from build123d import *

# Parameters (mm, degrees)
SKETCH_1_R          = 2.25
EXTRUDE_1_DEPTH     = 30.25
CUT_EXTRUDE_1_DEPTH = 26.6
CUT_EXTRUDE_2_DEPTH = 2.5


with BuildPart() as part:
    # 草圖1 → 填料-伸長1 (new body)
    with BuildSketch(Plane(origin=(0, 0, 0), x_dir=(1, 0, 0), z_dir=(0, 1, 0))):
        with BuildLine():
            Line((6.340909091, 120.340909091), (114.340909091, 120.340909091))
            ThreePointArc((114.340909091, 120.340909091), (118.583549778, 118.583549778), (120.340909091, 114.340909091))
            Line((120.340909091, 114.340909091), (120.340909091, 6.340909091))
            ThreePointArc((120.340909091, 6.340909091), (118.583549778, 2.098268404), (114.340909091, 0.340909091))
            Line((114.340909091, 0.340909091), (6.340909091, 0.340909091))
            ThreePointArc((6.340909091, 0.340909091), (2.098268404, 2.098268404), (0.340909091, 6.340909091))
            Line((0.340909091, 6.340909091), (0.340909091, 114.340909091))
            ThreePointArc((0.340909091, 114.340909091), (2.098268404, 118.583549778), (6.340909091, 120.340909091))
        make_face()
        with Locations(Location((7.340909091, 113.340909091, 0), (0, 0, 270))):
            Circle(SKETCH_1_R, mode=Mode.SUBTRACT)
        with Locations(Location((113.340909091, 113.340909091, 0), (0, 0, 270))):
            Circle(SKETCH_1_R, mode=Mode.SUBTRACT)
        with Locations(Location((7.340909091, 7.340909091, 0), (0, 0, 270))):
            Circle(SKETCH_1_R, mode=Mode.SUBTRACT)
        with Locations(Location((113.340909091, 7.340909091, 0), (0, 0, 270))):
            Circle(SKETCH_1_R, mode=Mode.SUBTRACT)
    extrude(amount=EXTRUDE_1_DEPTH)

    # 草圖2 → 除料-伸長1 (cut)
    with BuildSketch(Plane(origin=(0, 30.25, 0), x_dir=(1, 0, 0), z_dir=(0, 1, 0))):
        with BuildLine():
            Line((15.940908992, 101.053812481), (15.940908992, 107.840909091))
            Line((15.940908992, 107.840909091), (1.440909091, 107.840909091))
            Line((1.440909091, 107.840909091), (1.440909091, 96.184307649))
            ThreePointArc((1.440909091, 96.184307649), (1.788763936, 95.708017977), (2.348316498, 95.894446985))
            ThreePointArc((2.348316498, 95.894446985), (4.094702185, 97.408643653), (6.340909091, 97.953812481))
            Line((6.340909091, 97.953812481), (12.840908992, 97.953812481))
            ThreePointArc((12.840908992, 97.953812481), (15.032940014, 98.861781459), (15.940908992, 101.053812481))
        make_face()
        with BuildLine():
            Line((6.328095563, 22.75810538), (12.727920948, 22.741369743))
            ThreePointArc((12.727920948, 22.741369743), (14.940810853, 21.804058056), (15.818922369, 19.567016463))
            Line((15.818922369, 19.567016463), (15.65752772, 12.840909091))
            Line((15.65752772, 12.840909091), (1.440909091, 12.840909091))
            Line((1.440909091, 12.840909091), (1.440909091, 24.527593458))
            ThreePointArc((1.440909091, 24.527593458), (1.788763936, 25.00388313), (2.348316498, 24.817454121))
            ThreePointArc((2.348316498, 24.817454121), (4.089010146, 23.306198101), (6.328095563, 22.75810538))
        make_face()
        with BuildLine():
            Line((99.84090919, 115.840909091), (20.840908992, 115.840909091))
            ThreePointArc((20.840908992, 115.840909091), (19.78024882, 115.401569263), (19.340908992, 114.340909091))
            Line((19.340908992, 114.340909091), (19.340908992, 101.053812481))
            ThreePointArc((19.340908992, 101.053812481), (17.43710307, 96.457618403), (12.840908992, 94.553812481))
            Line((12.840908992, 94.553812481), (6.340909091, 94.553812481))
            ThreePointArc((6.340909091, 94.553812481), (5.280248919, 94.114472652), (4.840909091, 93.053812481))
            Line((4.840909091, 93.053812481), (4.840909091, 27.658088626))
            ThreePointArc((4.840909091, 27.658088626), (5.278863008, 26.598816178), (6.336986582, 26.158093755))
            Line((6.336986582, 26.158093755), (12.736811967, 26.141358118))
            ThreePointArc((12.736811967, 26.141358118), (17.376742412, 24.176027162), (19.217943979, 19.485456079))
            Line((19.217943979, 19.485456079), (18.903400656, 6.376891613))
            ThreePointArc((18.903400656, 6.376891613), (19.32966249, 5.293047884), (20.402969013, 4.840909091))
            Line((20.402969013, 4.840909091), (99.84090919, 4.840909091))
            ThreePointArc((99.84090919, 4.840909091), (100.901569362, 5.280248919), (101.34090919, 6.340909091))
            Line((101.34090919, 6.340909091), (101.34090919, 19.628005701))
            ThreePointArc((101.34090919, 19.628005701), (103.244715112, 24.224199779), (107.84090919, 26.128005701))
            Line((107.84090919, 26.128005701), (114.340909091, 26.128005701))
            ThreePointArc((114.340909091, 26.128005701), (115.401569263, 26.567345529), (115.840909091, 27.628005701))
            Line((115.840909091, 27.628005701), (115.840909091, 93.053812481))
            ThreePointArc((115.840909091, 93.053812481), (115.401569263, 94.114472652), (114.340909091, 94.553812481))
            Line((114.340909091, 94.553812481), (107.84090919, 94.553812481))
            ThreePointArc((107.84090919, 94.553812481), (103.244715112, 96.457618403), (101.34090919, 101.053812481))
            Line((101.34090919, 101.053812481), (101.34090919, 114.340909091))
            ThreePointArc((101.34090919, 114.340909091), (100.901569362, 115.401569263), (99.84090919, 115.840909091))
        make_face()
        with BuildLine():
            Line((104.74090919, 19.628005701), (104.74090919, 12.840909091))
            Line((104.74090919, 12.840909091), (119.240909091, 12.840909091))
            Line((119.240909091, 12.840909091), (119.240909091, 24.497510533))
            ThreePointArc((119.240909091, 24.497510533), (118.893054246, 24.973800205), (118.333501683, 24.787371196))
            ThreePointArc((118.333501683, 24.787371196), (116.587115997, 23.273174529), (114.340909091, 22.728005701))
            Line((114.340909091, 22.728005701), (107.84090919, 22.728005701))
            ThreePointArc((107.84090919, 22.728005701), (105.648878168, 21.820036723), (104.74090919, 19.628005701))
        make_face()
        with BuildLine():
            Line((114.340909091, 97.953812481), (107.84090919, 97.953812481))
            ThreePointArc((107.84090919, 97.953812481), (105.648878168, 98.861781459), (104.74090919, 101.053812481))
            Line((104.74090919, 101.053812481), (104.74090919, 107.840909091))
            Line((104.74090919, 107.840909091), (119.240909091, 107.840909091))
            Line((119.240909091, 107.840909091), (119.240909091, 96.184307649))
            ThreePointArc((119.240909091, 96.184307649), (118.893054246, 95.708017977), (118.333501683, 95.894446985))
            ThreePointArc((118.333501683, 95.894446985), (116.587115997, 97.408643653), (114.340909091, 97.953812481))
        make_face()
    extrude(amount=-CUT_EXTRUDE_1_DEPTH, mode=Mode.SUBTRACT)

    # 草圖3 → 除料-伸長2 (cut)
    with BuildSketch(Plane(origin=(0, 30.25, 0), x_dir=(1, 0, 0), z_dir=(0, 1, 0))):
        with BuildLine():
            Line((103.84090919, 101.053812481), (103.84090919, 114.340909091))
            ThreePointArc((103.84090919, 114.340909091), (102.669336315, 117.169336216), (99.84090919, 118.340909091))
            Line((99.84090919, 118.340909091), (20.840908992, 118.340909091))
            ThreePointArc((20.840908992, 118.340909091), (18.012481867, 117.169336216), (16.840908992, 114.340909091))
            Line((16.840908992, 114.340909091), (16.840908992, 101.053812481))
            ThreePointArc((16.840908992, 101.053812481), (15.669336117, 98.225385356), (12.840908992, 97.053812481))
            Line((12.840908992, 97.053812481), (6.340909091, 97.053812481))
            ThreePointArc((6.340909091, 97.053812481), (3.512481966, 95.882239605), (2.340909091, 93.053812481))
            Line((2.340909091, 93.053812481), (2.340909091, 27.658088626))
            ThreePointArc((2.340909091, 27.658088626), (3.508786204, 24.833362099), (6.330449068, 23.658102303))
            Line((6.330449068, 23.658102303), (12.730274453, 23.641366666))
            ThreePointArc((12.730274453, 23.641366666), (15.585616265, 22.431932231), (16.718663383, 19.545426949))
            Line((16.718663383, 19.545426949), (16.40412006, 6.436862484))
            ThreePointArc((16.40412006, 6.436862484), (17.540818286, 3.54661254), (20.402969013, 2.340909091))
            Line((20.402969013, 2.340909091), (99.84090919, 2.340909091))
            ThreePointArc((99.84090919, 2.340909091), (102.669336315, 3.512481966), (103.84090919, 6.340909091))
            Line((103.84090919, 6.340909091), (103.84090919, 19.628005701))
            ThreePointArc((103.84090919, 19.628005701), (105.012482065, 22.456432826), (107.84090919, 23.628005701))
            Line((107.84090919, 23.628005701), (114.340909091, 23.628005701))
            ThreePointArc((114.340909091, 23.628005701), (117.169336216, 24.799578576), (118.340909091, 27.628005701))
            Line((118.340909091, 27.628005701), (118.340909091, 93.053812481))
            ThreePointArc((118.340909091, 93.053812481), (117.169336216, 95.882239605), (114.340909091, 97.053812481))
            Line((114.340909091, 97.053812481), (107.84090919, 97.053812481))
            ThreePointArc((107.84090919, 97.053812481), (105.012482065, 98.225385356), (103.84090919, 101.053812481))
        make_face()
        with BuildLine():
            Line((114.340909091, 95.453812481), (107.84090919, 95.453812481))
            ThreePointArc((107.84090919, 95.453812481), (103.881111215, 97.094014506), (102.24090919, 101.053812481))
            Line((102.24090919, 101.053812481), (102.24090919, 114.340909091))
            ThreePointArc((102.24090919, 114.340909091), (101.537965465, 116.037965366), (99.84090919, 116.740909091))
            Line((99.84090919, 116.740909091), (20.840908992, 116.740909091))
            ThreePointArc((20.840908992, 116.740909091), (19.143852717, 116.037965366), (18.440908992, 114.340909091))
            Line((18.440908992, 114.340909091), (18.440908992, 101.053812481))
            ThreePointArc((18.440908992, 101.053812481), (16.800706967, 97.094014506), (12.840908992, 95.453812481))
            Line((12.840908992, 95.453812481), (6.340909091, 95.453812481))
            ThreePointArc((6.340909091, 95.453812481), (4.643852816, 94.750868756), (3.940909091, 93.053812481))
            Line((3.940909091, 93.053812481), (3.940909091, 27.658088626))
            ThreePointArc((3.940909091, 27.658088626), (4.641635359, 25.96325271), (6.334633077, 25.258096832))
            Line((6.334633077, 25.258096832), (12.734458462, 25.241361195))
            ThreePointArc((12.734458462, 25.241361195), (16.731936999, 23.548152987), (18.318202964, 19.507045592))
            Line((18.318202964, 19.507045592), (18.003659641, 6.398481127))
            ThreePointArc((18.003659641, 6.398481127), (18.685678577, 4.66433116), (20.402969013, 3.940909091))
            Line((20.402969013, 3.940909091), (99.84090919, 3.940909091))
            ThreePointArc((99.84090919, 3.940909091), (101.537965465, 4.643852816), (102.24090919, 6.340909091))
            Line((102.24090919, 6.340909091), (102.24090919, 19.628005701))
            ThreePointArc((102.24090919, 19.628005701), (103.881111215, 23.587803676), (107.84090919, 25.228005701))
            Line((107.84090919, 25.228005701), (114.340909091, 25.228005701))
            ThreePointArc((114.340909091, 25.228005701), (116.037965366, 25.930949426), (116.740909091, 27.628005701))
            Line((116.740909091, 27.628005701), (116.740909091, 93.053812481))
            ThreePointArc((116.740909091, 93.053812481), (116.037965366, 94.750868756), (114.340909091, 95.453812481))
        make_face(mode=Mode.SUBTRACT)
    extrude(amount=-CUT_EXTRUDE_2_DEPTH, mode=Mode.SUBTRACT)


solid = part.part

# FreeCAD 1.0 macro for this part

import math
import FreeCAD as App
import Part
import Sketcher

V = App.Vector

doc = App.newDocument("Part")
body = doc.addObject("PartDesign::Body", "Body")

# Sketch on XZ plane
sketch1 = body.newObject("Sketcher::SketchObject", "Sketch")
sketch1.AttachmentSupport = (doc.getObject("XZ_Plane"), [""])
sketch1.MapMode = "FlatFace"
sketch1.addGeometry(Part.LineSegment(V(114.3, -120.3, 0), V(6.3, -120.3, 0)), False)
sketch1.addGeometry(Part.ArcOfCircle(Part.Circle(V(6.3, -114.3, 0), V(0, 0, 1), 6), math.radians(180), math.radians(270)), False)
sketch1.addGeometry(Part.LineSegment(V(0.3, -114.3, 0), V(0.3, -6.3, 0)), False)
sketch1.addGeometry(Part.ArcOfCircle(Part.Circle(V(6.3, -6.3, 0), V(0, 0, 1), 6), math.radians(90), math.radians(180)), False)
sketch1.addGeometry(Part.LineSegment(V(6.3, -0.3, 0), V(114.3, -0.3, 0)), False)
sketch1.addGeometry(Part.ArcOfCircle(Part.Circle(V(114.3, -6.3, 0), V(0, 0, 1), 6), math.radians(0), math.radians(90)), False)
sketch1.addGeometry(Part.LineSegment(V(120.3, -6.3, 0), V(120.3, -114.3, 0)), False)
sketch1.addGeometry(Part.ArcOfCircle(Part.Circle(V(114.3, -114.3, 0), V(0, 0, 1), 6), math.radians(-90), math.radians(0)), False)
sketch1.addGeometry(Part.Circle(V(113.3, -7.3, 0), V(0, 0, 1), 2.2), False)
sketch1.addGeometry(Part.Circle(V(7.3, -7.3, 0), V(0, 0, 1), 2.2), False)
sketch1.addGeometry(Part.Circle(V(113.3, -113.3, 0), V(0, 0, 1), 2.2), False)
sketch1.addGeometry(Part.Circle(V(7.3, -113.3, 0), V(0, 0, 1), 2.2), False)
sketch1.addConstraint(Sketcher.Constraint("Tangent", 0, 2, 1, 2))
sketch1.addConstraint(Sketcher.Constraint("Tangent", 1, 1, 2, 1))
sketch1.addConstraint(Sketcher.Constraint("Tangent", 2, 2, 3, 2))
sketch1.addConstraint(Sketcher.Constraint("Tangent", 3, 1, 4, 1))
sketch1.addConstraint(Sketcher.Constraint("Tangent", 4, 2, 5, 2))
sketch1.addConstraint(Sketcher.Constraint("Tangent", 5, 1, 6, 1))
sketch1.addConstraint(Sketcher.Constraint("Tangent", 6, 2, 7, 2))
sketch1.addConstraint(Sketcher.Constraint("Tangent", 7, 1, 0, 1))
sketch1.addConstraint(Sketcher.Constraint("Horizontal", 0))
sketch1.addConstraint(Sketcher.Constraint("Vertical", 2))
sketch1.addConstraint(Sketcher.Constraint("Horizontal", 4))
sketch1.addConstraint(Sketcher.Constraint("Vertical", 6))
sketch1.addConstraint(Sketcher.Constraint("Equal", 1, 3))
sketch1.addConstraint(Sketcher.Constraint("Equal", 3, 5))
sketch1.addConstraint(Sketcher.Constraint("Equal", 5, 7))
sketch1.addConstraint(Sketcher.Constraint("Equal", 8, 9))
sketch1.addConstraint(Sketcher.Constraint("Equal", 9, 10))
sketch1.addConstraint(Sketcher.Constraint("Equal", 10, 11))
sketch1.addConstraint(Sketcher.Constraint("Horizontal", 8, 3, 9, 3))
sketch1.addConstraint(Sketcher.Constraint("Horizontal", 10, 3, 11, 3))
sketch1.addConstraint(Sketcher.Constraint("Vertical", 8, 3, 10, 3))
sketch1.addConstraint(Sketcher.Constraint("Vertical", 9, 3, 11, 3))
sketch1.addConstraint(Sketcher.Constraint("Equal", 4, 2))
sketch1.addConstraint(Sketcher.Constraint("Radius", 1, 6.0))
sketch1.addConstraint(Sketcher.Constraint("Diameter", 8, 4.5))
sketch1.addConstraint(Sketcher.Constraint("DistanceX", 0, 2, 0, 1, 108.0))
sketch1.addConstraint(Sketcher.Constraint("DistanceX", 8, 3, 5, 3, 1.0))
sketch1.addConstraint(Sketcher.Constraint("DistanceY", 8, 3, 5, 3, 1.0))
sketch1.addConstraint(Sketcher.Constraint("DistanceX", 3, 3, 9, 3, 1.0))
sketch1.addConstraint(Sketcher.Constraint("DistanceY", 7, 3, 10, 3, 1.0))
sketch1.addConstraint(Sketcher.Constraint("DistanceX", -1, 1, 1, 3, 6.340909))
sketch1.addConstraint(Sketcher.Constraint("DistanceY", 1, 3, -1, 1, 114.340909))
pad1 = body.newObject("PartDesign::Pad", "Pad")
pad1.Profile = sketch1
pad1.Length = 30.25
pad1.Reversed = True

# Sketch on XZ plane
sketch2 = body.newObject("Sketcher::SketchObject", "Sketch001")
sketch2.AttachmentSupport = (doc.getObject("XZ_Plane"), [""])
sketch2.MapMode = "FlatFace"
sketch2.AttachmentOffset = App.Placement(V(0, 0, -30.25), App.Rotation())
sketch2.addGeometry(Part.LineSegment(V(15.9, -101.1, 0), V(15.9, -107.8, 0)), False)
sketch2.addGeometry(Part.LineSegment(V(15.9, -107.8, 0), V(1.4, -107.8, 0)), False)
sketch2.addGeometry(Part.LineSegment(V(1.4, -107.8, 0), V(1.4, -96.2, 0)), False)
sketch2.addGeometry(Part.ArcOfCircle(Part.Circle(V(1.9, -96.2, 0), V(0, 0, 1), 0.5), math.radians(35), math.radians(180)), False)
sketch2.addGeometry(Part.ArcOfCircle(Part.Circle(V(6.3, -93.1, 0), V(0, 0, 1), 4.9), math.radians(-145), math.radians(-90)), False)
sketch2.addGeometry(Part.LineSegment(V(6.3, -98, 0), V(12.8, -98, 0)), False)
sketch2.addGeometry(Part.ArcOfCircle(Part.Circle(V(12.8, -101.1, 0), V(0, 0, 1), 3.1), math.radians(0), math.radians(90)), False)
sketch2.addGeometry(Part.LineSegment(V(12.7, -22.7, 0), V(6.3, -22.8, 0)), False)
sketch2.addGeometry(Part.ArcOfCircle(Part.Circle(V(6.3, -27.7, 0), V(0, 0, 1), 4.9), math.radians(90), math.radians(145)), False)
sketch2.addGeometry(Part.ArcOfCircle(Part.Circle(V(1.9, -24.5, 0), V(0, 0, 1), 0.5), math.radians(180), math.radians(325)), False)
sketch2.addGeometry(Part.LineSegment(V(1.4, -24.5, 0), V(1.4, -12.8, 0)), False)
sketch2.addGeometry(Part.LineSegment(V(1.4, -12.8, 0), V(15.7, -12.8, 0)), False)
sketch2.addGeometry(Part.LineSegment(V(15.7, -12.8, 0), V(15.8, -19.6, 0)), False)
sketch2.addGeometry(Part.ArcOfCircle(Part.Circle(V(12.7, -19.6, 0), V(0, 0, 1), 3.1), math.radians(-90), math.radians(1)), False)
sketch2.addGeometry(Part.LineSegment(V(99.8, -115.8, 0), V(20.8, -115.8, 0)), False)
sketch2.addGeometry(Part.ArcOfCircle(Part.Circle(V(20.8, -114.3, 0), V(0, 0, 1), 1.5), math.radians(180), math.radians(270)), False)
sketch2.addGeometry(Part.LineSegment(V(19.3, -114.3, 0), V(19.3, -101.1, 0)), False)
sketch2.addGeometry(Part.ArcOfCircle(Part.Circle(V(12.8, -101.1, 0), V(0, 0, 1), 6.5), math.radians(0), math.radians(90)), False)
sketch2.addGeometry(Part.LineSegment(V(12.8, -94.6, 0), V(6.3, -94.6, 0)), False)
sketch2.addGeometry(Part.ArcOfCircle(Part.Circle(V(6.3, -93.1, 0), V(0, 0, 1), 1.5), math.radians(-180), math.radians(-90)), False)
sketch2.addGeometry(Part.LineSegment(V(4.8, -93.1, 0), V(4.8, -27.7, 0)), False)
sketch2.addGeometry(Part.ArcOfCircle(Part.Circle(V(6.3, -27.7, 0), V(0, 0, 1), 1.5), math.radians(90), math.radians(180)), False)
sketch2.addGeometry(Part.LineSegment(V(6.3, -26.2, 0), V(12.7, -26.1, 0)), False)
sketch2.addGeometry(Part.ArcOfCircle(Part.Circle(V(12.7, -19.6, 0), V(0, 0, 1), 6.5), math.radians(-90), math.radians(1)), False)
sketch2.addGeometry(Part.LineSegment(V(19.2, -19.5, 0), V(18.9, -6.4, 0)), False)
sketch2.addGeometry(Part.ArcOfCircle(Part.Circle(V(20.4, -6.3, 0), V(0, 0, 1), 1.5), math.radians(90), math.radians(181)), False)
sketch2.addGeometry(Part.LineSegment(V(20.4, -4.8, 0), V(99.8, -4.8, 0)), False)
sketch2.addGeometry(Part.ArcOfCircle(Part.Circle(V(99.8, -6.3, 0), V(0, 0, 1), 1.5), math.radians(0), math.radians(90)), False)
sketch2.addGeometry(Part.LineSegment(V(101.3, -6.3, 0), V(101.3, -19.6, 0)), False)
sketch2.addGeometry(Part.ArcOfCircle(Part.Circle(V(107.8, -19.6, 0), V(0, 0, 1), 6.5), math.radians(180), math.radians(270)), False)
sketch2.addGeometry(Part.LineSegment(V(107.8, -26.1, 0), V(114.3, -26.1, 0)), False)
sketch2.addGeometry(Part.ArcOfCircle(Part.Circle(V(114.3, -27.6, 0), V(0, 0, 1), 1.5), math.radians(0), math.radians(90)), False)
sketch2.addGeometry(Part.LineSegment(V(115.8, -27.6, 0), V(115.8, -93.1, 0)), False)
sketch2.addGeometry(Part.ArcOfCircle(Part.Circle(V(114.3, -93.1, 0), V(0, 0, 1), 1.5), math.radians(-90), math.radians(0)), False)
sketch2.addGeometry(Part.LineSegment(V(114.3, -94.6, 0), V(107.8, -94.6, 0)), False)
sketch2.addGeometry(Part.ArcOfCircle(Part.Circle(V(107.8, -101.1, 0), V(0, 0, 1), 6.5), math.radians(90), math.radians(180)), False)
sketch2.addGeometry(Part.LineSegment(V(101.3, -101.1, 0), V(101.3, -114.3, 0)), False)
sketch2.addGeometry(Part.ArcOfCircle(Part.Circle(V(99.8, -114.3, 0), V(0, 0, 1), 1.5), math.radians(-90), math.radians(0)), False)
sketch2.addGeometry(Part.LineSegment(V(104.7, -19.6, 0), V(104.7, -12.8, 0)), False)
sketch2.addGeometry(Part.LineSegment(V(104.7, -12.8, 0), V(119.2, -12.8, 0)), False)
sketch2.addGeometry(Part.LineSegment(V(119.2, -12.8, 0), V(119.2, -24.5, 0)), False)
sketch2.addGeometry(Part.ArcOfCircle(Part.Circle(V(118.7, -24.5, 0), V(0, 0, 1), 0.5), math.radians(-145), math.radians(0)), False)
sketch2.addGeometry(Part.ArcOfCircle(Part.Circle(V(114.3, -27.6, 0), V(0, 0, 1), 4.9), math.radians(35), math.radians(90)), False)
sketch2.addGeometry(Part.LineSegment(V(114.3, -22.7, 0), V(107.8, -22.7, 0)), False)
sketch2.addGeometry(Part.ArcOfCircle(Part.Circle(V(107.8, -19.6, 0), V(0, 0, 1), 3.1), math.radians(180), math.radians(270)), False)
sketch2.addGeometry(Part.LineSegment(V(107.8, -98, 0), V(114.3, -98, 0)), False)
sketch2.addGeometry(Part.ArcOfCircle(Part.Circle(V(114.3, -93.1, 0), V(0, 0, 1), 4.9), math.radians(-90), math.radians(-35)), False)
sketch2.addGeometry(Part.ArcOfCircle(Part.Circle(V(118.7, -96.2, 0), V(0, 0, 1), 0.5), math.radians(0), math.radians(145)), False)
sketch2.addGeometry(Part.LineSegment(V(119.2, -96.2, 0), V(119.2, -107.8, 0)), False)
sketch2.addGeometry(Part.LineSegment(V(119.2, -107.8, 0), V(104.7, -107.8, 0)), False)
sketch2.addGeometry(Part.LineSegment(V(104.7, -107.8, 0), V(104.7, -101.1, 0)), False)
sketch2.addGeometry(Part.ArcOfCircle(Part.Circle(V(107.8, -101.1, 0), V(0, 0, 1), 3.1), math.radians(90), math.radians(180)), False)
sketch2.addConstraint(Sketcher.Constraint("Coincident", 0, 2, 1, 1))
sketch2.addConstraint(Sketcher.Constraint("Coincident", 1, 2, 2, 1))
sketch2.addConstraint(Sketcher.Constraint("Tangent", 2, 2, 3, 2))
sketch2.addConstraint(Sketcher.Constraint("Tangent", 3, 1, 4, 1))
sketch2.addConstraint(Sketcher.Constraint("Tangent", 4, 2, 5, 1))
sketch2.addConstraint(Sketcher.Constraint("Tangent", 5, 2, 6, 2))
sketch2.addConstraint(Sketcher.Constraint("Tangent", 6, 1, 0, 1))
sketch2.addConstraint(Sketcher.Constraint("Tangent", 7, 2, 8, 1))
sketch2.addConstraint(Sketcher.Constraint("Tangent", 8, 2, 9, 2))
sketch2.addConstraint(Sketcher.Constraint("Tangent", 9, 1, 10, 1))
sketch2.addConstraint(Sketcher.Constraint("Coincident", 10, 2, 11, 1))
sketch2.addConstraint(Sketcher.Constraint("Coincident", 11, 2, 12, 1))
sketch2.addConstraint(Sketcher.Constraint("Tangent", 12, 2, 13, 2))
sketch2.addConstraint(Sketcher.Constraint("Tangent", 13, 1, 7, 1))
sketch2.addConstraint(Sketcher.Constraint("Tangent", 14, 2, 15, 2))
sketch2.addConstraint(Sketcher.Constraint("Tangent", 15, 1, 16, 1))
sketch2.addConstraint(Sketcher.Constraint("Tangent", 16, 2, 17, 1))
sketch2.addConstraint(Sketcher.Constraint("Tangent", 17, 2, 18, 1))
sketch2.addConstraint(Sketcher.Constraint("Tangent", 18, 2, 19, 2))
sketch2.addConstraint(Sketcher.Constraint("Tangent", 19, 1, 20, 1))
sketch2.addConstraint(Sketcher.Constraint("Tangent", 20, 2, 21, 2))
sketch2.addConstraint(Sketcher.Constraint("Tangent", 21, 1, 22, 1))
sketch2.addConstraint(Sketcher.Constraint("Tangent", 22, 2, 23, 1))
sketch2.addConstraint(Sketcher.Constraint("Tangent", 23, 2, 24, 1))
sketch2.addConstraint(Sketcher.Constraint("Tangent", 24, 2, 25, 2))
sketch2.addConstraint(Sketcher.Constraint("Tangent", 25, 1, 26, 1))
sketch2.addConstraint(Sketcher.Constraint("Tangent", 26, 2, 27, 2))
sketch2.addConstraint(Sketcher.Constraint("Tangent", 27, 1, 28, 1))
sketch2.addConstraint(Sketcher.Constraint("Tangent", 28, 2, 29, 1))
sketch2.addConstraint(Sketcher.Constraint("Tangent", 29, 2, 30, 1))
sketch2.addConstraint(Sketcher.Constraint("Tangent", 30, 2, 31, 2))
sketch2.addConstraint(Sketcher.Constraint("Tangent", 31, 1, 32, 1))
sketch2.addConstraint(Sketcher.Constraint("Tangent", 32, 2, 33, 2))
sketch2.addConstraint(Sketcher.Constraint("Tangent", 33, 1, 34, 1))
sketch2.addConstraint(Sketcher.Constraint("Tangent", 34, 2, 35, 1))
sketch2.addConstraint(Sketcher.Constraint("Tangent", 35, 2, 36, 1))
sketch2.addConstraint(Sketcher.Constraint("Tangent", 36, 2, 37, 2))
sketch2.addConstraint(Sketcher.Constraint("Tangent", 37, 1, 14, 1))
sketch2.addConstraint(Sketcher.Constraint("Coincident", 38, 2, 39, 1))
sketch2.addConstraint(Sketcher.Constraint("Coincident", 39, 2, 40, 1))
sketch2.addConstraint(Sketcher.Constraint("Tangent", 40, 2, 41, 2))
sketch2.addConstraint(Sketcher.Constraint("Tangent", 41, 1, 42, 1))
sketch2.addConstraint(Sketcher.Constraint("Tangent", 42, 2, 43, 1))
sketch2.addConstraint(Sketcher.Constraint("Tangent", 43, 2, 44, 2))
sketch2.addConstraint(Sketcher.Constraint("Tangent", 44, 1, 38, 1))
sketch2.addConstraint(Sketcher.Constraint("Tangent", 45, 2, 46, 1))
sketch2.addConstraint(Sketcher.Constraint("Tangent", 46, 2, 47, 2))
sketch2.addConstraint(Sketcher.Constraint("Tangent", 47, 1, 48, 1))
sketch2.addConstraint(Sketcher.Constraint("Coincident", 48, 2, 49, 1))
sketch2.addConstraint(Sketcher.Constraint("Coincident", 49, 2, 50, 1))
sketch2.addConstraint(Sketcher.Constraint("Tangent", 50, 2, 51, 2))
sketch2.addConstraint(Sketcher.Constraint("Tangent", 51, 1, 45, 1))
sketch2.addConstraint(Sketcher.Constraint("Vertical", 0))
sketch2.addConstraint(Sketcher.Constraint("Horizontal", 1))
sketch2.addConstraint(Sketcher.Constraint("Vertical", 2))
sketch2.addConstraint(Sketcher.Constraint("Horizontal", 5))
sketch2.addConstraint(Sketcher.Constraint("Vertical", 10))
sketch2.addConstraint(Sketcher.Constraint("Horizontal", 11))
sketch2.addConstraint(Sketcher.Constraint("Horizontal", 14))
sketch2.addConstraint(Sketcher.Constraint("Vertical", 16))
sketch2.addConstraint(Sketcher.Constraint("Horizontal", 18))
sketch2.addConstraint(Sketcher.Constraint("Vertical", 20))
sketch2.addConstraint(Sketcher.Constraint("Horizontal", 26))
sketch2.addConstraint(Sketcher.Constraint("Vertical", 28))
sketch2.addConstraint(Sketcher.Constraint("Horizontal", 30))
sketch2.addConstraint(Sketcher.Constraint("Vertical", 32))
sketch2.addConstraint(Sketcher.Constraint("Horizontal", 34))
sketch2.addConstraint(Sketcher.Constraint("Vertical", 36))
sketch2.addConstraint(Sketcher.Constraint("Vertical", 38))
sketch2.addConstraint(Sketcher.Constraint("Horizontal", 39))
sketch2.addConstraint(Sketcher.Constraint("Vertical", 40))
sketch2.addConstraint(Sketcher.Constraint("Horizontal", 43))
sketch2.addConstraint(Sketcher.Constraint("Horizontal", 45))
sketch2.addConstraint(Sketcher.Constraint("Vertical", 48))
sketch2.addConstraint(Sketcher.Constraint("Horizontal", 49))
sketch2.addConstraint(Sketcher.Constraint("Vertical", 50))
sketch2.addConstraint(Sketcher.Constraint("Coincident", 17, 3, 6, 3))
sketch2.addConstraint(Sketcher.Constraint("Coincident", 19, 3, 4, 3))
sketch2.addConstraint(Sketcher.Constraint("Coincident", 21, 3, 8, 3))
sketch2.addConstraint(Sketcher.Constraint("Coincident", 23, 3, 13, 3))
sketch2.addConstraint(Sketcher.Constraint("Coincident", 42, 3, 31, 3))
sketch2.addConstraint(Sketcher.Constraint("Coincident", 44, 3, 29, 3))
sketch2.addConstraint(Sketcher.Constraint("Coincident", 46, 3, 33, 3))
sketch2.addConstraint(Sketcher.Constraint("Coincident", 51, 3, 35, 3))
sketch2.addConstraint(Sketcher.Constraint("Equal", 4, 8))
sketch2.addConstraint(Sketcher.Constraint("Equal", 3, 9))
sketch2.addConstraint(Sketcher.Constraint("Equal", 6, 13))
sketch2.addConstraint(Sketcher.Constraint("Equal", 15, 19))
sketch2.addConstraint(Sketcher.Constraint("Equal", 19, 21))
sketch2.addConstraint(Sketcher.Constraint("Equal", 17, 23))
sketch2.addConstraint(Sketcher.Constraint("Equal", 21, 25))
sketch2.addConstraint(Sketcher.Constraint("Equal", 25, 27))
sketch2.addConstraint(Sketcher.Constraint("Equal", 23, 29))
sketch2.addConstraint(Sketcher.Constraint("Equal", 27, 31))
sketch2.addConstraint(Sketcher.Constraint("Equal", 31, 33))
sketch2.addConstraint(Sketcher.Constraint("Equal", 29, 35))
sketch2.addConstraint(Sketcher.Constraint("Equal", 33, 37))
sketch2.addConstraint(Sketcher.Constraint("Equal", 9, 41))
sketch2.addConstraint(Sketcher.Constraint("Equal", 8, 42))
sketch2.addConstraint(Sketcher.Constraint("Equal", 42, 46))
sketch2.addConstraint(Sketcher.Constraint("Equal", 41, 47))
sketch2.addConstraint(Sketcher.Constraint("Parallel", 12, 24))
sketch2.addConstraint(Sketcher.Constraint("Horizontal", 19, 3, 33, 3))
sketch2.addConstraint(Sketcher.Constraint("Horizontal", 3, 3, 47, 3))
sketch2.addConstraint(Sketcher.Constraint("Horizontal", 11, 2, 38, 2))
sketch2.addConstraint(Sketcher.Constraint("Horizontal", 1, 2, 48, 2))
sketch2.addConstraint(Sketcher.Constraint("Vertical", 3, 3, 9, 3))
sketch2.addConstraint(Sketcher.Constraint("Vertical", 29, 3, 35, 3))
sketch2.addConstraint(Sketcher.Constraint("Vertical", 41, 3, 47, 3))
sketch2.addConstraint(Sketcher.Constraint("Equal", 18, 30))
sketch2.addConstraint(Sketcher.Constraint("Equal", 16, 28))
sketch2.addConstraint(Sketcher.Constraint("Equal", 0, 38))
sketch2.addConstraint(Sketcher.Constraint("Radius", 3, 0.5))
sketch2.addConstraint(Sketcher.Constraint("Radius", 4, 4.9))
sketch2.addConstraint(Sketcher.Constraint("Radius", 6, 3.1))
sketch2.addConstraint(Sketcher.Constraint("Radius", 15, 1.5))
sketch2.addConstraint(Sketcher.Constraint("DistanceX", 14, 2, 14, 1, 79.0))
sketch2.addConstraint(Sketcher.Constraint("DistanceX", 1, 2, 1, 1, 14.5))
sketch2.addConstraint(Sketcher.Constraint("DistanceX", 5, 1, 5, 2, 6.5))
sketch2.addConstraint(Sketcher.Constraint("DistanceY", 2, 1, 2, 2, 11.656601))
sketch2.addConstraint(Sketcher.Constraint("DistanceX", 11, 1, 11, 2, 14.216619))
sketch2.addConstraint(Sketcher.Constraint("DistanceX", 26, 1, 26, 2, 79.43794))
sketch2.addConstraint(Sketcher.Constraint("DistanceX", -1, 1, 24, 2, 18.903401))
sketch2.addConstraint(Sketcher.Constraint("DistanceY", 10, 1, 10, 2, 11.686684))
sketch2.addConstraint(Sketcher.Constraint("DistanceY", 16, 1, 16, 2, 13.287097))
sketch2.addConstraint(Sketcher.Constraint("DistanceY", 20, 1, 20, 2, 65.395724))
sketch2.addConstraint(Sketcher.Constraint("DistanceY", 8, 3, -1, 1, 27.658089))
sketch2.addConstraint(Sketcher.Constraint("DistanceY", 13, 3, -1, 1, 19.64138))
pocket1 = body.newObject("PartDesign::Pocket", "Pocket")
pocket1.Profile = sketch2
pocket1.Length = 26.6
pocket1.Reversed = True

# Sketch on XZ plane
sketch3 = body.newObject("Sketcher::SketchObject", "Sketch002")
sketch3.AttachmentSupport = (doc.getObject("XZ_Plane"), [""])
sketch3.MapMode = "FlatFace"
sketch3.AttachmentOffset = App.Placement(V(0, 0, -30.25), App.Rotation())
sketch3.addGeometry(Part.LineSegment(V(103.8, -101.1, 0), V(103.8, -114.3, 0)), False)
sketch3.addGeometry(Part.ArcOfCircle(Part.Circle(V(99.8, -114.3, 0), V(0, 0, 1), 4), math.radians(-90), math.radians(0)), False)
sketch3.addGeometry(Part.LineSegment(V(99.8, -118.3, 0), V(20.8, -118.3, 0)), False)
sketch3.addGeometry(Part.ArcOfCircle(Part.Circle(V(20.8, -114.3, 0), V(0, 0, 1), 4), math.radians(180), math.radians(270)), False)
sketch3.addGeometry(Part.LineSegment(V(16.8, -114.3, 0), V(16.8, -101.1, 0)), False)
sketch3.addGeometry(Part.ArcOfCircle(Part.Circle(V(12.8, -101.1, 0), V(0, 0, 1), 4), math.radians(0), math.radians(90)), False)
sketch3.addGeometry(Part.LineSegment(V(12.8, -97.1, 0), V(6.3, -97.1, 0)), False)
sketch3.addGeometry(Part.ArcOfCircle(Part.Circle(V(6.3, -93.1, 0), V(0, 0, 1), 4), math.radians(-180), math.radians(-90)), False)
sketch3.addGeometry(Part.LineSegment(V(2.3, -93.1, 0), V(2.3, -27.7, 0)), False)
sketch3.addGeometry(Part.ArcOfCircle(Part.Circle(V(6.3, -27.7, 0), V(0, 0, 1), 4), math.radians(90), math.radians(180)), False)
sketch3.addGeometry(Part.LineSegment(V(6.3, -23.7, 0), V(12.7, -23.6, 0)), False)
sketch3.addGeometry(Part.ArcOfCircle(Part.Circle(V(12.7, -19.6, 0), V(0, 0, 1), 4), math.radians(-90), math.radians(1)), False)
sketch3.addGeometry(Part.LineSegment(V(16.7, -19.5, 0), V(16.4, -6.4, 0)), False)
sketch3.addGeometry(Part.ArcOfCircle(Part.Circle(V(20.4, -6.3, 0), V(0, 0, 1), 4), math.radians(90), math.radians(181)), False)
sketch3.addGeometry(Part.LineSegment(V(20.4, -2.3, 0), V(99.8, -2.3, 0)), False)
sketch3.addGeometry(Part.ArcOfCircle(Part.Circle(V(99.8, -6.3, 0), V(0, 0, 1), 4), math.radians(0), math.radians(90)), False)
sketch3.addGeometry(Part.LineSegment(V(103.8, -6.3, 0), V(103.8, -19.6, 0)), False)
sketch3.addGeometry(Part.ArcOfCircle(Part.Circle(V(107.8, -19.6, 0), V(0, 0, 1), 4), math.radians(180), math.radians(270)), False)
sketch3.addGeometry(Part.LineSegment(V(107.8, -23.6, 0), V(114.3, -23.6, 0)), False)
sketch3.addGeometry(Part.ArcOfCircle(Part.Circle(V(114.3, -27.6, 0), V(0, 0, 1), 4), math.radians(0), math.radians(90)), False)
sketch3.addGeometry(Part.LineSegment(V(118.3, -27.6, 0), V(118.3, -93.1, 0)), False)
sketch3.addGeometry(Part.ArcOfCircle(Part.Circle(V(114.3, -93.1, 0), V(0, 0, 1), 4), math.radians(-90), math.radians(0)), False)
sketch3.addGeometry(Part.LineSegment(V(114.3, -97.1, 0), V(107.8, -97.1, 0)), False)
sketch3.addGeometry(Part.ArcOfCircle(Part.Circle(V(107.8, -101.1, 0), V(0, 0, 1), 4), math.radians(90), math.radians(180)), False)
sketch3.addGeometry(Part.LineSegment(V(107.8, -95.5, 0), V(114.3, -95.5, 0)), False)
sketch3.addGeometry(Part.ArcOfCircle(Part.Circle(V(114.3, -93.1, 0), V(0, 0, 1), 2.4), math.radians(-90), math.radians(0)), False)
sketch3.addGeometry(Part.LineSegment(V(116.7, -93.1, 0), V(116.7, -27.6, 0)), False)
sketch3.addGeometry(Part.ArcOfCircle(Part.Circle(V(114.3, -27.6, 0), V(0, 0, 1), 2.4), math.radians(0), math.radians(90)), False)
sketch3.addGeometry(Part.LineSegment(V(114.3, -25.2, 0), V(107.8, -25.2, 0)), False)
sketch3.addGeometry(Part.ArcOfCircle(Part.Circle(V(107.8, -19.6, 0), V(0, 0, 1), 5.6), math.radians(180), math.radians(270)), False)
sketch3.addGeometry(Part.LineSegment(V(102.2, -19.6, 0), V(102.2, -6.3, 0)), False)
sketch3.addGeometry(Part.ArcOfCircle(Part.Circle(V(99.8, -6.3, 0), V(0, 0, 1), 2.4), math.radians(0), math.radians(90)), False)
sketch3.addGeometry(Part.LineSegment(V(99.8, -3.9, 0), V(20.4, -3.9, 0)), False)
sketch3.addGeometry(Part.ArcOfCircle(Part.Circle(V(20.4, -6.3, 0), V(0, 0, 1), 2.4), math.radians(90), math.radians(181)), False)
sketch3.addGeometry(Part.LineSegment(V(18, -6.4, 0), V(18.3, -19.5, 0)), False)
sketch3.addGeometry(Part.ArcOfCircle(Part.Circle(V(12.7, -19.6, 0), V(0, 0, 1), 5.6), math.radians(-90), math.radians(1)), False)
sketch3.addGeometry(Part.LineSegment(V(12.7, -25.2, 0), V(6.3, -25.3, 0)), False)
sketch3.addGeometry(Part.ArcOfCircle(Part.Circle(V(6.3, -27.7, 0), V(0, 0, 1), 2.4), math.radians(90), math.radians(180)), False)
sketch3.addGeometry(Part.LineSegment(V(3.9, -27.7, 0), V(3.9, -93.1, 0)), False)
sketch3.addGeometry(Part.ArcOfCircle(Part.Circle(V(6.3, -93.1, 0), V(0, 0, 1), 2.4), math.radians(180), math.radians(270)), False)
sketch3.addGeometry(Part.LineSegment(V(6.3, -95.5, 0), V(12.8, -95.5, 0)), False)
sketch3.addGeometry(Part.ArcOfCircle(Part.Circle(V(12.8, -101.1, 0), V(0, 0, 1), 5.6), math.radians(0), math.radians(90)), False)
sketch3.addGeometry(Part.LineSegment(V(18.4, -101.1, 0), V(18.4, -114.3, 0)), False)
sketch3.addGeometry(Part.ArcOfCircle(Part.Circle(V(20.8, -114.3, 0), V(0, 0, 1), 2.4), math.radians(180), math.radians(270)), False)
sketch3.addGeometry(Part.LineSegment(V(20.8, -116.7, 0), V(99.8, -116.7, 0)), False)
sketch3.addGeometry(Part.ArcOfCircle(Part.Circle(V(99.8, -114.3, 0), V(0, 0, 1), 2.4), math.radians(-90), math.radians(0)), False)
sketch3.addGeometry(Part.LineSegment(V(102.2, -114.3, 0), V(102.2, -101.1, 0)), False)
sketch3.addGeometry(Part.ArcOfCircle(Part.Circle(V(107.8, -101.1, 0), V(0, 0, 1), 5.6), math.radians(90), math.radians(180)), False)
sketch3.addConstraint(Sketcher.Constraint("Tangent", 0, 2, 1, 2))
sketch3.addConstraint(Sketcher.Constraint("Tangent", 1, 1, 2, 1))
sketch3.addConstraint(Sketcher.Constraint("Tangent", 2, 2, 3, 2))
sketch3.addConstraint(Sketcher.Constraint("Tangent", 3, 1, 4, 1))
sketch3.addConstraint(Sketcher.Constraint("Tangent", 4, 2, 5, 1))
sketch3.addConstraint(Sketcher.Constraint("Tangent", 5, 2, 6, 1))
sketch3.addConstraint(Sketcher.Constraint("Tangent", 6, 2, 7, 2))
sketch3.addConstraint(Sketcher.Constraint("Tangent", 7, 1, 8, 1))
sketch3.addConstraint(Sketcher.Constraint("Tangent", 8, 2, 9, 2))
sketch3.addConstraint(Sketcher.Constraint("Tangent", 9, 1, 10, 1))
sketch3.addConstraint(Sketcher.Constraint("Tangent", 10, 2, 11, 1))
sketch3.addConstraint(Sketcher.Constraint("Tangent", 11, 2, 12, 1))
sketch3.addConstraint(Sketcher.Constraint("Tangent", 12, 2, 13, 2))
sketch3.addConstraint(Sketcher.Constraint("Tangent", 13, 1, 14, 1))
sketch3.addConstraint(Sketcher.Constraint("Tangent", 14, 2, 15, 2))
sketch3.addConstraint(Sketcher.Constraint("Tangent", 15, 1, 16, 1))
sketch3.addConstraint(Sketcher.Constraint("Tangent", 16, 2, 17, 1))
sketch3.addConstraint(Sketcher.Constraint("Tangent", 17, 2, 18, 1))
sketch3.addConstraint(Sketcher.Constraint("Tangent", 18, 2, 19, 2))
sketch3.addConstraint(Sketcher.Constraint("Tangent", 19, 1, 20, 1))
sketch3.addConstraint(Sketcher.Constraint("Tangent", 20, 2, 21, 2))
sketch3.addConstraint(Sketcher.Constraint("Tangent", 21, 1, 22, 1))
sketch3.addConstraint(Sketcher.Constraint("Tangent", 22, 2, 23, 1))
sketch3.addConstraint(Sketcher.Constraint("Tangent", 23, 2, 0, 1))
sketch3.addConstraint(Sketcher.Constraint("Tangent", 24, 2, 25, 1))
sketch3.addConstraint(Sketcher.Constraint("Tangent", 25, 2, 26, 1))
sketch3.addConstraint(Sketcher.Constraint("Tangent", 26, 2, 27, 1))
sketch3.addConstraint(Sketcher.Constraint("Tangent", 27, 2, 28, 1))
sketch3.addConstraint(Sketcher.Constraint("Tangent", 28, 2, 29, 2))
sketch3.addConstraint(Sketcher.Constraint("Tangent", 29, 1, 30, 1))
sketch3.addConstraint(Sketcher.Constraint("Tangent", 30, 2, 31, 1))
sketch3.addConstraint(Sketcher.Constraint("Tangent", 31, 2, 32, 1))
sketch3.addConstraint(Sketcher.Constraint("Tangent", 32, 2, 33, 1))
sketch3.addConstraint(Sketcher.Constraint("Tangent", 33, 2, 34, 1))
sketch3.addConstraint(Sketcher.Constraint("Tangent", 34, 2, 35, 2))
sketch3.addConstraint(Sketcher.Constraint("Tangent", 35, 1, 36, 1))
sketch3.addConstraint(Sketcher.Constraint("Tangent", 36, 2, 37, 1))
sketch3.addConstraint(Sketcher.Constraint("Tangent", 37, 2, 38, 1))
sketch3.addConstraint(Sketcher.Constraint("Tangent", 38, 2, 39, 1))
sketch3.addConstraint(Sketcher.Constraint("Tangent", 39, 2, 40, 1))
sketch3.addConstraint(Sketcher.Constraint("Tangent", 40, 2, 41, 2))
sketch3.addConstraint(Sketcher.Constraint("Tangent", 41, 1, 42, 1))
sketch3.addConstraint(Sketcher.Constraint("Tangent", 42, 2, 43, 1))
sketch3.addConstraint(Sketcher.Constraint("Tangent", 43, 2, 44, 1))
sketch3.addConstraint(Sketcher.Constraint("Tangent", 44, 2, 45, 1))
sketch3.addConstraint(Sketcher.Constraint("Tangent", 45, 2, 46, 1))
sketch3.addConstraint(Sketcher.Constraint("Tangent", 46, 2, 47, 2))
sketch3.addConstraint(Sketcher.Constraint("Tangent", 47, 1, 24, 1))
sketch3.addConstraint(Sketcher.Constraint("Vertical", 0))
sketch3.addConstraint(Sketcher.Constraint("Horizontal", 2))
sketch3.addConstraint(Sketcher.Constraint("Vertical", 4))
sketch3.addConstraint(Sketcher.Constraint("Horizontal", 6))
sketch3.addConstraint(Sketcher.Constraint("Vertical", 8))
sketch3.addConstraint(Sketcher.Constraint("Horizontal", 14))
sketch3.addConstraint(Sketcher.Constraint("Vertical", 16))
sketch3.addConstraint(Sketcher.Constraint("Horizontal", 18))
sketch3.addConstraint(Sketcher.Constraint("Vertical", 20))
sketch3.addConstraint(Sketcher.Constraint("Horizontal", 22))
sketch3.addConstraint(Sketcher.Constraint("Horizontal", 24))
sketch3.addConstraint(Sketcher.Constraint("Vertical", 26))
sketch3.addConstraint(Sketcher.Constraint("Horizontal", 28))
sketch3.addConstraint(Sketcher.Constraint("Vertical", 30))
sketch3.addConstraint(Sketcher.Constraint("Horizontal", 32))
sketch3.addConstraint(Sketcher.Constraint("Vertical", 38))
sketch3.addConstraint(Sketcher.Constraint("Horizontal", 40))
sketch3.addConstraint(Sketcher.Constraint("Vertical", 42))
sketch3.addConstraint(Sketcher.Constraint("Horizontal", 44))
sketch3.addConstraint(Sketcher.Constraint("Vertical", 46))
sketch3.addConstraint(Sketcher.Constraint("Coincident", 25, 3, 21, 3))
sketch3.addConstraint(Sketcher.Constraint("Coincident", 27, 3, 19, 3))
sketch3.addConstraint(Sketcher.Constraint("Coincident", 29, 3, 17, 3))
sketch3.addConstraint(Sketcher.Constraint("Coincident", 31, 3, 15, 3))
sketch3.addConstraint(Sketcher.Constraint("Coincident", 33, 3, 13, 3))
sketch3.addConstraint(Sketcher.Constraint("Coincident", 35, 3, 11, 3))
sketch3.addConstraint(Sketcher.Constraint("Coincident", 37, 3, 9, 3))
sketch3.addConstraint(Sketcher.Constraint("Coincident", 39, 3, 7, 3))
sketch3.addConstraint(Sketcher.Constraint("Coincident", 41, 3, 5, 3))
sketch3.addConstraint(Sketcher.Constraint("Coincident", 43, 3, 3, 3))
sketch3.addConstraint(Sketcher.Constraint("Coincident", 45, 3, 1, 3))
sketch3.addConstraint(Sketcher.Constraint("Coincident", 47, 3, 23, 3))
sketch3.addConstraint(Sketcher.Constraint("Equal", 1, 3))
sketch3.addConstraint(Sketcher.Constraint("Equal", 3, 5))
sketch3.addConstraint(Sketcher.Constraint("Equal", 5, 7))
sketch3.addConstraint(Sketcher.Constraint("Equal", 7, 9))
sketch3.addConstraint(Sketcher.Constraint("Equal", 9, 11))
sketch3.addConstraint(Sketcher.Constraint("Equal", 11, 13))
sketch3.addConstraint(Sketcher.Constraint("Equal", 13, 15))
sketch3.addConstraint(Sketcher.Constraint("Equal", 15, 17))
sketch3.addConstraint(Sketcher.Constraint("Equal", 17, 19))
sketch3.addConstraint(Sketcher.Constraint("Equal", 19, 21))
sketch3.addConstraint(Sketcher.Constraint("Equal", 21, 23))
sketch3.addConstraint(Sketcher.Constraint("Equal", 29, 35))
sketch3.addConstraint(Sketcher.Constraint("Horizontal", 7, 3, 21, 3))
sketch3.addConstraint(Sketcher.Constraint("Vertical", 1, 3, 15, 3))
sketch3.addConstraint(Sketcher.Constraint("Equal", 6, 18))
sketch3.addConstraint(Sketcher.Constraint("Equal", 4, 16))
sketch3.addConstraint(Sketcher.Constraint("Radius", 1, 4.0))
sketch3.addConstraint(Sketcher.Constraint("Radius", 25, 2.4))
sketch3.addConstraint(Sketcher.Constraint("DistanceX", 2, 2, 2, 1, 79.0))
sketch3.addConstraint(Sketcher.Constraint("DistanceX", 6, 2, 6, 1, 6.5))
sketch3.addConstraint(Sketcher.Constraint("DistanceX", 14, 1, 14, 2, 79.43794))
sketch3.addConstraint(Sketcher.Constraint("DistanceY", 0, 2, 0, 1, 13.287097))
sketch3.addConstraint(Sketcher.Constraint("DistanceY", 8, 1, 8, 2, 65.395724))
sketch3.addConstraint(Sketcher.Constraint("DistanceY", 20, 2, 20, 1, 65.425807))
sketch3.addConstraint(Sketcher.Constraint("DistanceX", -1, 1, 1, 3, 99.840909))
sketch3.addConstraint(Sketcher.Constraint("DistanceY", 1, 3, -1, 1, 114.340909))
sketch3.addConstraint(Sketcher.Constraint("DistanceY", 11, 3, -1, 1, 19.64138))
sketch3.addConstraint(Sketcher.Constraint("DistanceX", -1, 1, 12, 2, 16.40412))
pocket2 = body.newObject("PartDesign::Pocket", "Pocket001")
pocket2.Profile = sketch3
pocket2.Length = 2.5
pocket2.Reversed = True

doc.recompute()
